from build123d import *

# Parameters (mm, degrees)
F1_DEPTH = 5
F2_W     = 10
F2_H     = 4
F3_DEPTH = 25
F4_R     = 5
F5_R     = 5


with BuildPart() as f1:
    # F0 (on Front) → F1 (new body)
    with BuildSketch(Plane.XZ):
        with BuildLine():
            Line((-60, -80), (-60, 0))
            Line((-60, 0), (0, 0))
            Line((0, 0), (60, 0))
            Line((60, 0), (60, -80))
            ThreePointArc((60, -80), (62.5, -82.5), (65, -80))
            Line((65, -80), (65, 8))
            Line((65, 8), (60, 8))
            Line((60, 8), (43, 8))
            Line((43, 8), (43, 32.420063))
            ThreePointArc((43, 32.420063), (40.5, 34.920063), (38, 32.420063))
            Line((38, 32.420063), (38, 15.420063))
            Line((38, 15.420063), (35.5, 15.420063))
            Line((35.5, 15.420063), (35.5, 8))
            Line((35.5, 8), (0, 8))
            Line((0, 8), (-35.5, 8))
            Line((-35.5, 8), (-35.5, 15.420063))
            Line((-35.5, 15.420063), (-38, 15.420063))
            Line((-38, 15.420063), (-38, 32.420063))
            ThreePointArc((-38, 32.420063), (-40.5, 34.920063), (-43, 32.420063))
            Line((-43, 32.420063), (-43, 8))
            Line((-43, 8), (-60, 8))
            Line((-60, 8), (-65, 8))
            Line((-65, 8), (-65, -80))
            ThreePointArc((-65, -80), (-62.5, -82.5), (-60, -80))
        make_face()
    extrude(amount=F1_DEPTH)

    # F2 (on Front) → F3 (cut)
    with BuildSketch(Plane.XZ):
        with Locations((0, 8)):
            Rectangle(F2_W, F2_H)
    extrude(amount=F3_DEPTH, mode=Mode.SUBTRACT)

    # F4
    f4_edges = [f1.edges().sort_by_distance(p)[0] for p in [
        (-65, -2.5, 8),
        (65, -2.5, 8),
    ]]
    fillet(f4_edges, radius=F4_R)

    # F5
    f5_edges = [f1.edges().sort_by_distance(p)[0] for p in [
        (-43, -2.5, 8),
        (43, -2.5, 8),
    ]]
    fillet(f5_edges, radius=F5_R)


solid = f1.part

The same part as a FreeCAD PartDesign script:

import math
import FreeCAD as App
import Part
import Sketcher

V = App.Vector


def edges_at(feature, points):
    """Names of the edges that pass closest to the given points."""
    edges = feature.Shape.Edges
    near = lambda p: min(range(len(edges)), key=lambda i: edges[i].distToShape(Part.Vertex(*p))[0])
    return sorted({f"Edge{near(p) + 1}" for p in points})


def add_polygon(sketch, points):
    """Adds a closed chain of lines whose ends are joined by coincident constraints."""
    first, n = sketch.GeometryCount, len(points)
    for a, b in zip(points, points[1:] + points[:1]):
        sketch.addGeometry(Part.LineSegment(App.Vector(*a, 0), App.Vector(*b, 0)), False)
    for i in range(n):
        sketch.addConstraint(Sketcher.Constraint("Coincident", first + i, 2, first + (i + 1) % n, 1))

doc = App.newDocument("Part")
body = doc.addObject("PartDesign::Body", "Body")

sketch1 = body.newObject("Sketcher::SketchObject", "Sketch")
sketch1.AttachmentSupport = (doc.getObject("XZ_Plane"), [""])
sketch1.MapMode = "FlatFace"
sketch1.addGeometry([
    Part.LineSegment(V(-60, -80, 0), V(-60, 0, 0)),
    Part.LineSegment(V(-60, 0, 0), V(60, 0, 0)),
    Part.LineSegment(V(60, 0, 0), V(60, -80, 0)),
    Part.ArcOfCircle(Part.Circle(V(62.5, -80, 0), V(0, 0, 1), 2.5), math.radians(180), math.radians(360)),
    Part.LineSegment(V(65, -80, 0), V(65, 8, 0)),
    Part.LineSegment(V(65, 8, 0), V(43, 8, 0)),
    Part.LineSegment(V(43, 8, 0), V(43, 32.4, 0)),
    Part.ArcOfCircle(Part.Circle(V(40.5, 32.4, 0), V(0, 0, 1), 2.5), math.radians(0), math.radians(180)),
    Part.LineSegment(V(38, 32.4, 0), V(38, 15.4, 0)),
    Part.LineSegment(V(38, 15.4, 0), V(35.5, 15.4, 0)),
    Part.LineSegment(V(35.5, 15.4, 0), V(35.5, 8, 0)),
    Part.LineSegment(V(35.5, 8, 0), V(-35.5, 8, 0)),
    Part.LineSegment(V(-35.5, 8, 0), V(-35.5, 15.4, 0)),
    Part.LineSegment(V(-35.5, 15.4, 0), V(-38, 15.4, 0)),
    Part.LineSegment(V(-38, 15.4, 0), V(-38, 32.4, 0)),
    Part.ArcOfCircle(Part.Circle(V(-40.5, 32.4, 0), V(0, 0, 1), 2.5), math.radians(0), math.radians(180)),
    Part.LineSegment(V(-43, 32.4, 0), V(-43, 8, 0)),
    Part.LineSegment(V(-43, 8, 0), V(-65, 8, 0)),
    Part.LineSegment(V(-65, 8, 0), V(-65, -80, 0)),
    Part.ArcOfCircle(Part.Circle(V(-62.5, -80, 0), V(0, 0, 1), 2.5), math.radians(180), math.radians(360)),
], False)
sketch1.addConstraint([
    Sketcher.Constraint("Coincident", 0, 2, 1, 1),
    Sketcher.Constraint("Coincident", 1, 2, 2, 1),
    Sketcher.Constraint("Tangent", 2, 2, 3, 1),
    Sketcher.Constraint("Tangent", 3, 2, 4, 1),
    Sketcher.Constraint("Coincident", 4, 2, 5, 1),
    Sketcher.Constraint("Coincident", 5, 2, 6, 1),
    Sketcher.Constraint("Tangent", 6, 2, 7, 1),
    Sketcher.Constraint("Tangent", 7, 2, 8, 1),
    Sketcher.Constraint("Coincident", 8, 2, 9, 1),
    Sketcher.Constraint("Coincident", 9, 2, 10, 1),
    Sketcher.Constraint("Coincident", 10, 2, 11, 1),
    Sketcher.Constraint("Coincident", 11, 2, 12, 1),
    Sketcher.Constraint("Coincident", 12, 2, 13, 1),
    Sketcher.Constraint("Coincident", 13, 2, 14, 1),
    Sketcher.Constraint("Tangent", 14, 2, 15, 1),
    Sketcher.Constraint("Tangent", 15, 2, 16, 1),
    Sketcher.Constraint("Coincident", 16, 2, 17, 1),
    Sketcher.Constraint("Coincident", 17, 2, 18, 1),
    Sketcher.Constraint("Tangent", 18, 2, 19, 1),
    Sketcher.Constraint("Tangent", 19, 2, 0, 1),
    Sketcher.Constraint("Vertical", 0),
    Sketcher.Constraint("Horizontal", 1),
    Sketcher.Constraint("Vertical", 2),
    Sketcher.Constraint("Vertical", 4),
    Sketcher.Constraint("Horizontal", 5),
    Sketcher.Constraint("Vertical", 6),
    Sketcher.Constraint("Vertical", 8),
    Sketcher.Constraint("Horizontal", 9),
    Sketcher.Constraint("Vertical", 10),
    Sketcher.Constraint("Horizontal", 11),
    Sketcher.Constraint("Vertical", 12),
    Sketcher.Constraint("Horizontal", 13),
    Sketcher.Constraint("Vertical", 14),
    Sketcher.Constraint("Vertical", 16),
    Sketcher.Constraint("Horizontal", 17),
    Sketcher.Constraint("Vertical", 18),
    Sketcher.Constraint("Equal", 3, 7),
    Sketcher.Constraint("Equal", 7, 15),
    Sketcher.Constraint("Equal", 15, 19),
    Sketcher.Constraint("Symmetric", 0, 2, 1, 2, -1, 1),
    Sketcher.Constraint("Symmetric", 7, 3, 15, 3, -2),
    Sketcher.Constraint("Symmetric", 9, 2, 12, 2, -2),
    Sketcher.Constraint("Horizontal", 3, 3, 19, 3),
    Sketcher.Constraint("Horizontal", 5, 2, 10, 2),
    Sketcher.Constraint("Horizontal", 11, 2, 16, 2),
    Sketcher.Constraint("Radius", 3, 2.5),
    Sketcher.Constraint("DistanceX", 1, 1, 1, 2, 120.0),
    Sketcher.Constraint("DistanceX", 5, 2, 5, 1, 22.0),
    Sketcher.Constraint("DistanceX", 11, 2, 11, 1, 71.0),
    Sketcher.Constraint("DistanceY", 0, 1, 0, 2, 80.0),
    Sketcher.Constraint("DistanceY", 4, 1, 4, 2, 88.0),
    Sketcher.Constraint("DistanceY", 8, 2, 8, 1, 17.0),
    Sketcher.Constraint("DistanceY", 6, 1, 6, 2, 24.420063),
])
pad1 = body.newObject("PartDesign::Pad", "Pad")
pad1.Profile = sketch1
pad1.Length = 5

sketch2 = body.newObject("Sketcher::SketchObject", "Sketch001")
sketch2.AttachmentSupport = (doc.getObject("XZ_Plane"), [""])
sketch2.MapMode = "FlatFace"
add_polygon(sketch2, [(-5, 10), (-5, 6), (5, 6), (5, 10)])
sketch2.addConstraint([
    Sketcher.Constraint("Vertical", 0),
    Sketcher.Constraint("Horizontal", 1),
    Sketcher.Constraint("Vertical", 2),
    Sketcher.Constraint("Horizontal", 3),
    Sketcher.Constraint("DistanceX", 1, 1, 1, 2, 10.0),
    Sketcher.Constraint("DistanceY", 0, 2, 0, 1, 4.0),
    Sketcher.Constraint("DistanceX", 0, 2, -1, 1, 5.0),
    Sketcher.Constraint("DistanceY", -1, 1, 0, 2, 6.0),
])
pocket1 = body.newObject("PartDesign::Pocket", "Pocket")
pocket1.Profile = sketch2
pocket1.Length = 25
pocket1.Reversed = True
doc.recompute()

fillet = body.newObject("PartDesign::Fillet", "Fillet")
fillet.Base = (pocket1, edges_at(pocket1, [(-65, -2.5, 8), (65, -2.5, 8)]))
fillet.Radius = 5
doc.recompute()

fillet2 = body.newObject("PartDesign::Fillet", "Fillet001")
fillet2.Base = (fillet, edges_at(fillet, [(-43, -2.5, 8), (43, -2.5, 8)]))
fillet2.Radius = 5

doc.recompute()
